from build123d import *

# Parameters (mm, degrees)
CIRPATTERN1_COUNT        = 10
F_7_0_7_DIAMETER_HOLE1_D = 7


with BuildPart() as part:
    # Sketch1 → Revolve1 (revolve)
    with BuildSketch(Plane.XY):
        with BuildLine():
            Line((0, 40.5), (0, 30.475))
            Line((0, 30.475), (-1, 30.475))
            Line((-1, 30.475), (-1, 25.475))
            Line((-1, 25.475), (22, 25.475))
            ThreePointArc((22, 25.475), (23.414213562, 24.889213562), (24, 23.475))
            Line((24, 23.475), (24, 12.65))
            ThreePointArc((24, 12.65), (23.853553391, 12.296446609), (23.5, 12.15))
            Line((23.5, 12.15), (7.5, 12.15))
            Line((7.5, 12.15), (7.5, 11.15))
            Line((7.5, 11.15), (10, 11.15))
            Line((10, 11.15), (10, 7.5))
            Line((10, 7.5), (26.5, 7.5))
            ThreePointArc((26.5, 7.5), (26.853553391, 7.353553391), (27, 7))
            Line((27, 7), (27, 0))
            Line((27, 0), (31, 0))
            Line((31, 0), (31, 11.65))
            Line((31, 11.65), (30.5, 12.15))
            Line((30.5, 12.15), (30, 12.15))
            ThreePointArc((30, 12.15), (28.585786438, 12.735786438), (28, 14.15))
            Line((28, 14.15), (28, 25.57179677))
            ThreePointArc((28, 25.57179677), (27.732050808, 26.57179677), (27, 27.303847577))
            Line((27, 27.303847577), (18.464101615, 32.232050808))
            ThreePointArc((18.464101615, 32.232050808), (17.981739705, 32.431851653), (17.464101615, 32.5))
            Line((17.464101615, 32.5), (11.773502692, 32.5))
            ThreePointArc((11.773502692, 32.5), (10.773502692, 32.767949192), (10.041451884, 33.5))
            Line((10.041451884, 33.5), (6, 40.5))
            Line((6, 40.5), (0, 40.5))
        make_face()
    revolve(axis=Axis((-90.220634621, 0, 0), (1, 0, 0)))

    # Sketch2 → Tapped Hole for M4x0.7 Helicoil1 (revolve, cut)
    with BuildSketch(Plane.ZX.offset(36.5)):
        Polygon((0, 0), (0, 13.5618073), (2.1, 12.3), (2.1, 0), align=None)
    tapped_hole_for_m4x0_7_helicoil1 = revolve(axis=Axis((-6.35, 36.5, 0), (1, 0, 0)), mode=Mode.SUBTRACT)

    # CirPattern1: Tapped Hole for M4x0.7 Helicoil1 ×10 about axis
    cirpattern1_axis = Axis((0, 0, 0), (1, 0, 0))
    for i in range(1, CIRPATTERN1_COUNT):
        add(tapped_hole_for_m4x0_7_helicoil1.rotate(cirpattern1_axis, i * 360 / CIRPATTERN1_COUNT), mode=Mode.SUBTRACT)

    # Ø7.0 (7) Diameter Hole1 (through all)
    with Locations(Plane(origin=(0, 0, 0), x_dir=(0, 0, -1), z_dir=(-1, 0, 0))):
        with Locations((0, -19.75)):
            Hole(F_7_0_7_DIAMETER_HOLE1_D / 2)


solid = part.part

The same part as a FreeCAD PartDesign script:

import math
import FreeCAD as App
import Part
import Sketcher
Q = App.Units.Quantity

doc = App.newDocument("Part")
body = doc.addObject("PartDesign::Body", "Body")

# Sketch on XY plane
sketch1 = doc.addObject("Sketcher::SketchObject", "Sketch")
body.addObject(sketch1)
sketch1.AttachmentSupport = (doc.XY_Plane, [""])
sketch1.MapMode = "FlatFace"
sketch1.addGeometry([
    Part.LineSegment(App.Vector(0, 40.5, 0), App.Vector(0, 30.475, 0)),  # 0
    Part.LineSegment(App.Vector(0, 30.475, 0), App.Vector(-1, 30.475, 0)),  # 1
    Part.LineSegment(App.Vector(-1, 30.475, 0), App.Vector(-1, 25.475, 0)),  # 2
    Part.LineSegment(App.Vector(-1, 25.475, 0), App.Vector(22, 25.475, 0)),  # 3
    Part.ArcOfCircle(Part.Circle(App.Vector(22, 23.475, 0), App.Vector(0, 0, 1), 2), math.radians(0), math.radians(90)),  # 4
    Part.LineSegment(App.Vector(24, 23.475, 0), App.Vector(24, 12.65, 0)),  # 5
    Part.ArcOfCircle(Part.Circle(App.Vector(23.5, 12.65, 0), App.Vector(0, 0, 1), 0.5), math.radians(-90), math.radians(0)),  # 6
    Part.LineSegment(App.Vector(23.5, 12.15, 0), App.Vector(7.5, 12.15, 0)),  # 7
    Part.LineSegment(App.Vector(7.5, 12.15, 0), App.Vector(7.5, 11.15, 0)),  # 8
    Part.LineSegment(App.Vector(7.5, 11.15, 0), App.Vector(10, 11.15, 0)),  # 9
    Part.LineSegment(App.Vector(10, 11.15, 0), App.Vector(10, 7.5, 0)),  # 10
    Part.LineSegment(App.Vector(10, 7.5, 0), App.Vector(26.5, 7.5, 0)),  # 11
    Part.ArcOfCircle(Part.Circle(App.Vector(26.5, 7, 0), App.Vector(0, 0, 1), 0.5), math.radians(0), math.radians(90)),  # 12
    Part.LineSegment(App.Vector(27, 7, 0), App.Vector(27, 0, 0)),  # 13
    Part.LineSegment(App.Vector(27, 0, 0), App.Vector(31, 0, 0)),  # 14
    Part.LineSegment(App.Vector(31, 0, 0), App.Vector(31, 11.65, 0)),  # 15
    Part.LineSegment(App.Vector(31, 11.65, 0), App.Vector(30.5, 12.15, 0)),  # 16
    Part.LineSegment(App.Vector(30.5, 12.15, 0), App.Vector(30, 12.15, 0)),  # 17
    Part.ArcOfCircle(Part.Circle(App.Vector(30, 14.15, 0), App.Vector(0, 0, 1), 2), math.radians(-180), math.radians(-90)),  # 18
    Part.LineSegment(App.Vector(28, 14.15, 0), App.Vector(28, 25.571797, 0)),  # 19
    Part.ArcOfCircle(Part.Circle(App.Vector(26, 25.571797, 0), App.Vector(0, 0, 1), 2), math.radians(0), math.radians(60)),  # 20
    Part.LineSegment(App.Vector(27, 27.303848, 0), App.Vector(18.464102, 32.232051, 0)),  # 21
    Part.ArcOfCircle(Part.Circle(App.Vector(17.464102, 30.5, 0), App.Vector(0, 0, 1), 2), math.radians(60), math.radians(90)),  # 22
    Part.LineSegment(App.Vector(17.464102, 32.5, 0), App.Vector(11.773503, 32.5, 0)),  # 23
    Part.ArcOfCircle(Part.Circle(App.Vector(11.773503, 34.5, 0), App.Vector(0, 0, 1), 2), math.radians(-150), math.radians(-90)),  # 24
    Part.LineSegment(App.Vector(10.041452, 33.5, 0), App.Vector(6, 40.5, 0)),  # 25
    Part.LineSegment(App.Vector(6, 40.5, 0), App.Vector(0, 40.5, 0)),  # 26
], False)
sketch1.addConstraint([
    Sketcher.Constraint("Coincident", 0, 2, 1, 1),
    Sketcher.Constraint("Coincident", 1, 2, 2, 1),
    Sketcher.Constraint("Coincident", 2, 2, 3, 1),
    Sketcher.Constraint("Tangent", 3, 2, 4, 2),
    Sketcher.Constraint("Tangent", 4, 1, 5, 1),
    Sketcher.Constraint("Tangent", 5, 2, 6, 2),
    Sketcher.Constraint("Tangent", 6, 1, 7, 1),
    Sketcher.Constraint("Coincident", 7, 2, 8, 1),
    Sketcher.Constraint("Coincident", 8, 2, 9, 1),
    Sketcher.Constraint("Coincident", 9, 2, 10, 1),
    Sketcher.Constraint("Coincident", 10, 2, 11, 1),
    Sketcher.Constraint("Tangent", 11, 2, 12, 2),
    Sketcher.Constraint("Tangent", 12, 1, 13, 1),
    Sketcher.Constraint("Coincident", 13, 2, 14, 1),
    Sketcher.Constraint("Coincident", 14, 2, 15, 1),
    Sketcher.Constraint("Coincident", 15, 2, 16, 1),
    Sketcher.Constraint("Coincident", 16, 2, 17, 1),
    Sketcher.Constraint("Tangent", 17, 2, 18, 2),
    Sketcher.Constraint("Tangent", 18, 1, 19, 1),
    Sketcher.Constraint("Tangent", 19, 2, 20, 1),
    Sketcher.Constraint("Tangent", 20, 2, 21, 1),
    Sketcher.Constraint("Tangent", 21, 2, 22, 1),
    Sketcher.Constraint("Tangent", 22, 2, 23, 1),
    Sketcher.Constraint("Tangent", 23, 2, 24, 2),
    Sketcher.Constraint("Tangent", 24, 1, 25, 1),
    Sketcher.Constraint("Coincident", 25, 2, 26, 1),
    Sketcher.Constraint("Coincident", 26, 2, 0, 1),
    Sketcher.Constraint("Vertical", 0),
    Sketcher.Constraint("Horizontal", 1),
    Sketcher.Constraint("Vertical", 2),
    Sketcher.Constraint("Horizontal", 3),
    Sketcher.Constraint("Vertical", 5),
    Sketcher.Constraint("Horizontal", 7),
    Sketcher.Constraint("Vertical", 8),
    Sketcher.Constraint("Horizontal", 9),
    Sketcher.Constraint("Vertical", 10),
    Sketcher.Constraint("Horizontal", 11),
    Sketcher.Constraint("Vertical", 13),
    Sketcher.Constraint("Horizontal", 14),
    Sketcher.Constraint("Vertical", 15),
    Sketcher.Constraint("Horizontal", 17),
    Sketcher.Constraint("Vertical", 19),
    Sketcher.Constraint("Horizontal", 23),
    Sketcher.Constraint("Horizontal", 26),
    Sketcher.Constraint("Equal", 6, 12),
    Sketcher.Constraint("Equal", 4, 18),
    Sketcher.Constraint("Equal", 18, 20),
    Sketcher.Constraint("Equal", 20, 22),
    Sketcher.Constraint("Equal", 22, 24),
    Sketcher.Constraint("PointOnObject", 0, 2, -2),
    Sketcher.Constraint("PointOnObject", 13, 2, -1),
    Sketcher.Constraint("Horizontal", 7, 2, 16, 2),
    Sketcher.Constraint("Vertical", 13, 2, 20, 2),
    Sketcher.Constraint("Equal", 1, 8),
    Sketcher.Constraint("Radius", 4, 2.0),
    Sketcher.Constraint("Radius", 6, 0.5),
    Sketcher.Constraint("DistanceX", 1, 2, 1, 1, 1.0),
    Sketcher.Constraint("DistanceX", 3, 1, 3, 2, 23.0),
    Sketcher.Constraint("DistanceX", 7, 2, 7, 1, 16.0),
    Sketcher.Constraint("DistanceX", 14, 1, 14, 2, 4.0),
    Sketcher.Constraint("DistanceX", 26, 2, 26, 1, 6.0),
    Sketcher.Constraint("DistanceY", 2, 2, 2, 1, 5.0),
    Sketcher.Constraint("DistanceY", 13, 2, 13, 1, 7.0),
    Sketcher.Constraint("Angle", 16, Q("135 deg")),
    Sketcher.Constraint("Angle", 21, Q("150 deg")),
    Sketcher.Constraint("Angle", 25, Q("120 deg")),
    Sketcher.Constraint("DistanceX", 9, 1, 9, 2, 2.5),
    Sketcher.Constraint("DistanceX", 11, 1, 11, 2, 16.5),
    Sketcher.Constraint("DistanceX", 17, 2, 17, 1, 0.5),
    Sketcher.Constraint("DistanceY", 24, 1, 25, 2, 7.0),
    Sketcher.Constraint("DistanceY", 10, 2, 10, 1, 3.65),
    Sketcher.Constraint("DistanceY", -1, 1, 22, 3, 30.5),
    Sketcher.Constraint("DistanceY", 0, 2, 0, 1, 10.025),
    Sketcher.Constraint("DistanceX", 23, 2, 23, 1, 5.690599),
])
revolution = doc.addObject("PartDesign::Revolution", "Revolution")
body.addObject(revolution)
revolution.Profile = sketch1
revolution.ReferenceAxis = (sketch1, ["H_Axis"])
revolution.Angle = 360

# Sketch on XZ plane
sketch2 = doc.addObject("Sketcher::SketchObject", "Sketch001")
body.addObject(sketch2)
sketch2.AttachmentSupport = (doc.XZ_Plane, [""])
sketch2.MapMode = "FlatFace"
sketch2.AttachmentOffset = App.Placement(App.Vector(0, 0, -36.5), App.Rotation())
sketch2.addGeometry([
    Part.LineSegment(App.Vector(13.561807, 0, 0), App.Vector(0, 0, 0)),
    Part.LineSegment(App.Vector(0, 0, 0), App.Vector(0, 2.1, 0)),
    Part.LineSegment(App.Vector(0, 2.1, 0), App.Vector(12.3, 2.1, 0)),
    Part.LineSegment(App.Vector(12.3, 2.1, 0), App.Vector(13.561807, 0, 0)),
], False)
sketch2.addConstraint([
    Sketcher.Constraint("Coincident", 0, 2, 1, 1),
    Sketcher.Constraint("Coincident", 1, 2, 2, 1),
    Sketcher.Constraint("Coincident", 2, 2, 3, 1),
    Sketcher.Constraint("Coincident", 3, 2, 0, 1),
    Sketcher.Constraint("Horizontal", 0),
    Sketcher.Constraint("Vertical", 1),
    Sketcher.Constraint("Horizontal", 2),
    Sketcher.Constraint("Coincident", 0, 2, -1, 1),
    Sketcher.Constraint("Angle", 3, Q("-59 deg")),
    Sketcher.Constraint("DistanceX", 2, 1, 2, 2, 12.3),
    Sketcher.Constraint("DistanceY", 1, 1, 1, 2, 2.1),
])
groove = doc.addObject("PartDesign::Groove", "Groove")
body.addObject(groove)
groove.Profile = sketch2
groove.ReferenceAxis = (sketch2, ["H_Axis"])
groove.Angle = 360
doc.recompute()

polarpattern = doc.addObject("PartDesign::PolarPattern", "PolarPattern")
body.addObject(polarpattern)
polarpattern.Originals = [groove]
polarpattern.Axis = (doc.X_Axis, [""])
polarpattern.Angle = 360
polarpattern.Occurrences = 10
body.Tip = polarpattern

# Sketch on YZ plane
sketch3 = doc.addObject("Sketcher::SketchObject", "Sketch002")
body.addObject(sketch3)
sketch3.AttachmentSupport = (doc.YZ_Plane, [""])
sketch3.MapMode = "FlatFace"
sketch3.addGeometry(Part.Circle(App.Vector(19.75, 0, 0), App.Vector(0, 0, 1), 3.5), False)
sketch3.addConstraint([
    Sketcher.Constraint("PointOnObject", 0, 3, -1),
    Sketcher.Constraint("Diameter", 0, 7.0),
    Sketcher.Constraint("DistanceX", -1, 1, 0, 3, 19.75),
])
doc.recompute()
hole = doc.addObject("PartDesign::Hole", "Hole")
body.addObject(hole)
hole.Profile = sketch3
hole.ThreadType = "None"
hole.Diameter = 7
hole.DepthType = "ThroughAll"
hole.Reversed = True

doc.recompute()
